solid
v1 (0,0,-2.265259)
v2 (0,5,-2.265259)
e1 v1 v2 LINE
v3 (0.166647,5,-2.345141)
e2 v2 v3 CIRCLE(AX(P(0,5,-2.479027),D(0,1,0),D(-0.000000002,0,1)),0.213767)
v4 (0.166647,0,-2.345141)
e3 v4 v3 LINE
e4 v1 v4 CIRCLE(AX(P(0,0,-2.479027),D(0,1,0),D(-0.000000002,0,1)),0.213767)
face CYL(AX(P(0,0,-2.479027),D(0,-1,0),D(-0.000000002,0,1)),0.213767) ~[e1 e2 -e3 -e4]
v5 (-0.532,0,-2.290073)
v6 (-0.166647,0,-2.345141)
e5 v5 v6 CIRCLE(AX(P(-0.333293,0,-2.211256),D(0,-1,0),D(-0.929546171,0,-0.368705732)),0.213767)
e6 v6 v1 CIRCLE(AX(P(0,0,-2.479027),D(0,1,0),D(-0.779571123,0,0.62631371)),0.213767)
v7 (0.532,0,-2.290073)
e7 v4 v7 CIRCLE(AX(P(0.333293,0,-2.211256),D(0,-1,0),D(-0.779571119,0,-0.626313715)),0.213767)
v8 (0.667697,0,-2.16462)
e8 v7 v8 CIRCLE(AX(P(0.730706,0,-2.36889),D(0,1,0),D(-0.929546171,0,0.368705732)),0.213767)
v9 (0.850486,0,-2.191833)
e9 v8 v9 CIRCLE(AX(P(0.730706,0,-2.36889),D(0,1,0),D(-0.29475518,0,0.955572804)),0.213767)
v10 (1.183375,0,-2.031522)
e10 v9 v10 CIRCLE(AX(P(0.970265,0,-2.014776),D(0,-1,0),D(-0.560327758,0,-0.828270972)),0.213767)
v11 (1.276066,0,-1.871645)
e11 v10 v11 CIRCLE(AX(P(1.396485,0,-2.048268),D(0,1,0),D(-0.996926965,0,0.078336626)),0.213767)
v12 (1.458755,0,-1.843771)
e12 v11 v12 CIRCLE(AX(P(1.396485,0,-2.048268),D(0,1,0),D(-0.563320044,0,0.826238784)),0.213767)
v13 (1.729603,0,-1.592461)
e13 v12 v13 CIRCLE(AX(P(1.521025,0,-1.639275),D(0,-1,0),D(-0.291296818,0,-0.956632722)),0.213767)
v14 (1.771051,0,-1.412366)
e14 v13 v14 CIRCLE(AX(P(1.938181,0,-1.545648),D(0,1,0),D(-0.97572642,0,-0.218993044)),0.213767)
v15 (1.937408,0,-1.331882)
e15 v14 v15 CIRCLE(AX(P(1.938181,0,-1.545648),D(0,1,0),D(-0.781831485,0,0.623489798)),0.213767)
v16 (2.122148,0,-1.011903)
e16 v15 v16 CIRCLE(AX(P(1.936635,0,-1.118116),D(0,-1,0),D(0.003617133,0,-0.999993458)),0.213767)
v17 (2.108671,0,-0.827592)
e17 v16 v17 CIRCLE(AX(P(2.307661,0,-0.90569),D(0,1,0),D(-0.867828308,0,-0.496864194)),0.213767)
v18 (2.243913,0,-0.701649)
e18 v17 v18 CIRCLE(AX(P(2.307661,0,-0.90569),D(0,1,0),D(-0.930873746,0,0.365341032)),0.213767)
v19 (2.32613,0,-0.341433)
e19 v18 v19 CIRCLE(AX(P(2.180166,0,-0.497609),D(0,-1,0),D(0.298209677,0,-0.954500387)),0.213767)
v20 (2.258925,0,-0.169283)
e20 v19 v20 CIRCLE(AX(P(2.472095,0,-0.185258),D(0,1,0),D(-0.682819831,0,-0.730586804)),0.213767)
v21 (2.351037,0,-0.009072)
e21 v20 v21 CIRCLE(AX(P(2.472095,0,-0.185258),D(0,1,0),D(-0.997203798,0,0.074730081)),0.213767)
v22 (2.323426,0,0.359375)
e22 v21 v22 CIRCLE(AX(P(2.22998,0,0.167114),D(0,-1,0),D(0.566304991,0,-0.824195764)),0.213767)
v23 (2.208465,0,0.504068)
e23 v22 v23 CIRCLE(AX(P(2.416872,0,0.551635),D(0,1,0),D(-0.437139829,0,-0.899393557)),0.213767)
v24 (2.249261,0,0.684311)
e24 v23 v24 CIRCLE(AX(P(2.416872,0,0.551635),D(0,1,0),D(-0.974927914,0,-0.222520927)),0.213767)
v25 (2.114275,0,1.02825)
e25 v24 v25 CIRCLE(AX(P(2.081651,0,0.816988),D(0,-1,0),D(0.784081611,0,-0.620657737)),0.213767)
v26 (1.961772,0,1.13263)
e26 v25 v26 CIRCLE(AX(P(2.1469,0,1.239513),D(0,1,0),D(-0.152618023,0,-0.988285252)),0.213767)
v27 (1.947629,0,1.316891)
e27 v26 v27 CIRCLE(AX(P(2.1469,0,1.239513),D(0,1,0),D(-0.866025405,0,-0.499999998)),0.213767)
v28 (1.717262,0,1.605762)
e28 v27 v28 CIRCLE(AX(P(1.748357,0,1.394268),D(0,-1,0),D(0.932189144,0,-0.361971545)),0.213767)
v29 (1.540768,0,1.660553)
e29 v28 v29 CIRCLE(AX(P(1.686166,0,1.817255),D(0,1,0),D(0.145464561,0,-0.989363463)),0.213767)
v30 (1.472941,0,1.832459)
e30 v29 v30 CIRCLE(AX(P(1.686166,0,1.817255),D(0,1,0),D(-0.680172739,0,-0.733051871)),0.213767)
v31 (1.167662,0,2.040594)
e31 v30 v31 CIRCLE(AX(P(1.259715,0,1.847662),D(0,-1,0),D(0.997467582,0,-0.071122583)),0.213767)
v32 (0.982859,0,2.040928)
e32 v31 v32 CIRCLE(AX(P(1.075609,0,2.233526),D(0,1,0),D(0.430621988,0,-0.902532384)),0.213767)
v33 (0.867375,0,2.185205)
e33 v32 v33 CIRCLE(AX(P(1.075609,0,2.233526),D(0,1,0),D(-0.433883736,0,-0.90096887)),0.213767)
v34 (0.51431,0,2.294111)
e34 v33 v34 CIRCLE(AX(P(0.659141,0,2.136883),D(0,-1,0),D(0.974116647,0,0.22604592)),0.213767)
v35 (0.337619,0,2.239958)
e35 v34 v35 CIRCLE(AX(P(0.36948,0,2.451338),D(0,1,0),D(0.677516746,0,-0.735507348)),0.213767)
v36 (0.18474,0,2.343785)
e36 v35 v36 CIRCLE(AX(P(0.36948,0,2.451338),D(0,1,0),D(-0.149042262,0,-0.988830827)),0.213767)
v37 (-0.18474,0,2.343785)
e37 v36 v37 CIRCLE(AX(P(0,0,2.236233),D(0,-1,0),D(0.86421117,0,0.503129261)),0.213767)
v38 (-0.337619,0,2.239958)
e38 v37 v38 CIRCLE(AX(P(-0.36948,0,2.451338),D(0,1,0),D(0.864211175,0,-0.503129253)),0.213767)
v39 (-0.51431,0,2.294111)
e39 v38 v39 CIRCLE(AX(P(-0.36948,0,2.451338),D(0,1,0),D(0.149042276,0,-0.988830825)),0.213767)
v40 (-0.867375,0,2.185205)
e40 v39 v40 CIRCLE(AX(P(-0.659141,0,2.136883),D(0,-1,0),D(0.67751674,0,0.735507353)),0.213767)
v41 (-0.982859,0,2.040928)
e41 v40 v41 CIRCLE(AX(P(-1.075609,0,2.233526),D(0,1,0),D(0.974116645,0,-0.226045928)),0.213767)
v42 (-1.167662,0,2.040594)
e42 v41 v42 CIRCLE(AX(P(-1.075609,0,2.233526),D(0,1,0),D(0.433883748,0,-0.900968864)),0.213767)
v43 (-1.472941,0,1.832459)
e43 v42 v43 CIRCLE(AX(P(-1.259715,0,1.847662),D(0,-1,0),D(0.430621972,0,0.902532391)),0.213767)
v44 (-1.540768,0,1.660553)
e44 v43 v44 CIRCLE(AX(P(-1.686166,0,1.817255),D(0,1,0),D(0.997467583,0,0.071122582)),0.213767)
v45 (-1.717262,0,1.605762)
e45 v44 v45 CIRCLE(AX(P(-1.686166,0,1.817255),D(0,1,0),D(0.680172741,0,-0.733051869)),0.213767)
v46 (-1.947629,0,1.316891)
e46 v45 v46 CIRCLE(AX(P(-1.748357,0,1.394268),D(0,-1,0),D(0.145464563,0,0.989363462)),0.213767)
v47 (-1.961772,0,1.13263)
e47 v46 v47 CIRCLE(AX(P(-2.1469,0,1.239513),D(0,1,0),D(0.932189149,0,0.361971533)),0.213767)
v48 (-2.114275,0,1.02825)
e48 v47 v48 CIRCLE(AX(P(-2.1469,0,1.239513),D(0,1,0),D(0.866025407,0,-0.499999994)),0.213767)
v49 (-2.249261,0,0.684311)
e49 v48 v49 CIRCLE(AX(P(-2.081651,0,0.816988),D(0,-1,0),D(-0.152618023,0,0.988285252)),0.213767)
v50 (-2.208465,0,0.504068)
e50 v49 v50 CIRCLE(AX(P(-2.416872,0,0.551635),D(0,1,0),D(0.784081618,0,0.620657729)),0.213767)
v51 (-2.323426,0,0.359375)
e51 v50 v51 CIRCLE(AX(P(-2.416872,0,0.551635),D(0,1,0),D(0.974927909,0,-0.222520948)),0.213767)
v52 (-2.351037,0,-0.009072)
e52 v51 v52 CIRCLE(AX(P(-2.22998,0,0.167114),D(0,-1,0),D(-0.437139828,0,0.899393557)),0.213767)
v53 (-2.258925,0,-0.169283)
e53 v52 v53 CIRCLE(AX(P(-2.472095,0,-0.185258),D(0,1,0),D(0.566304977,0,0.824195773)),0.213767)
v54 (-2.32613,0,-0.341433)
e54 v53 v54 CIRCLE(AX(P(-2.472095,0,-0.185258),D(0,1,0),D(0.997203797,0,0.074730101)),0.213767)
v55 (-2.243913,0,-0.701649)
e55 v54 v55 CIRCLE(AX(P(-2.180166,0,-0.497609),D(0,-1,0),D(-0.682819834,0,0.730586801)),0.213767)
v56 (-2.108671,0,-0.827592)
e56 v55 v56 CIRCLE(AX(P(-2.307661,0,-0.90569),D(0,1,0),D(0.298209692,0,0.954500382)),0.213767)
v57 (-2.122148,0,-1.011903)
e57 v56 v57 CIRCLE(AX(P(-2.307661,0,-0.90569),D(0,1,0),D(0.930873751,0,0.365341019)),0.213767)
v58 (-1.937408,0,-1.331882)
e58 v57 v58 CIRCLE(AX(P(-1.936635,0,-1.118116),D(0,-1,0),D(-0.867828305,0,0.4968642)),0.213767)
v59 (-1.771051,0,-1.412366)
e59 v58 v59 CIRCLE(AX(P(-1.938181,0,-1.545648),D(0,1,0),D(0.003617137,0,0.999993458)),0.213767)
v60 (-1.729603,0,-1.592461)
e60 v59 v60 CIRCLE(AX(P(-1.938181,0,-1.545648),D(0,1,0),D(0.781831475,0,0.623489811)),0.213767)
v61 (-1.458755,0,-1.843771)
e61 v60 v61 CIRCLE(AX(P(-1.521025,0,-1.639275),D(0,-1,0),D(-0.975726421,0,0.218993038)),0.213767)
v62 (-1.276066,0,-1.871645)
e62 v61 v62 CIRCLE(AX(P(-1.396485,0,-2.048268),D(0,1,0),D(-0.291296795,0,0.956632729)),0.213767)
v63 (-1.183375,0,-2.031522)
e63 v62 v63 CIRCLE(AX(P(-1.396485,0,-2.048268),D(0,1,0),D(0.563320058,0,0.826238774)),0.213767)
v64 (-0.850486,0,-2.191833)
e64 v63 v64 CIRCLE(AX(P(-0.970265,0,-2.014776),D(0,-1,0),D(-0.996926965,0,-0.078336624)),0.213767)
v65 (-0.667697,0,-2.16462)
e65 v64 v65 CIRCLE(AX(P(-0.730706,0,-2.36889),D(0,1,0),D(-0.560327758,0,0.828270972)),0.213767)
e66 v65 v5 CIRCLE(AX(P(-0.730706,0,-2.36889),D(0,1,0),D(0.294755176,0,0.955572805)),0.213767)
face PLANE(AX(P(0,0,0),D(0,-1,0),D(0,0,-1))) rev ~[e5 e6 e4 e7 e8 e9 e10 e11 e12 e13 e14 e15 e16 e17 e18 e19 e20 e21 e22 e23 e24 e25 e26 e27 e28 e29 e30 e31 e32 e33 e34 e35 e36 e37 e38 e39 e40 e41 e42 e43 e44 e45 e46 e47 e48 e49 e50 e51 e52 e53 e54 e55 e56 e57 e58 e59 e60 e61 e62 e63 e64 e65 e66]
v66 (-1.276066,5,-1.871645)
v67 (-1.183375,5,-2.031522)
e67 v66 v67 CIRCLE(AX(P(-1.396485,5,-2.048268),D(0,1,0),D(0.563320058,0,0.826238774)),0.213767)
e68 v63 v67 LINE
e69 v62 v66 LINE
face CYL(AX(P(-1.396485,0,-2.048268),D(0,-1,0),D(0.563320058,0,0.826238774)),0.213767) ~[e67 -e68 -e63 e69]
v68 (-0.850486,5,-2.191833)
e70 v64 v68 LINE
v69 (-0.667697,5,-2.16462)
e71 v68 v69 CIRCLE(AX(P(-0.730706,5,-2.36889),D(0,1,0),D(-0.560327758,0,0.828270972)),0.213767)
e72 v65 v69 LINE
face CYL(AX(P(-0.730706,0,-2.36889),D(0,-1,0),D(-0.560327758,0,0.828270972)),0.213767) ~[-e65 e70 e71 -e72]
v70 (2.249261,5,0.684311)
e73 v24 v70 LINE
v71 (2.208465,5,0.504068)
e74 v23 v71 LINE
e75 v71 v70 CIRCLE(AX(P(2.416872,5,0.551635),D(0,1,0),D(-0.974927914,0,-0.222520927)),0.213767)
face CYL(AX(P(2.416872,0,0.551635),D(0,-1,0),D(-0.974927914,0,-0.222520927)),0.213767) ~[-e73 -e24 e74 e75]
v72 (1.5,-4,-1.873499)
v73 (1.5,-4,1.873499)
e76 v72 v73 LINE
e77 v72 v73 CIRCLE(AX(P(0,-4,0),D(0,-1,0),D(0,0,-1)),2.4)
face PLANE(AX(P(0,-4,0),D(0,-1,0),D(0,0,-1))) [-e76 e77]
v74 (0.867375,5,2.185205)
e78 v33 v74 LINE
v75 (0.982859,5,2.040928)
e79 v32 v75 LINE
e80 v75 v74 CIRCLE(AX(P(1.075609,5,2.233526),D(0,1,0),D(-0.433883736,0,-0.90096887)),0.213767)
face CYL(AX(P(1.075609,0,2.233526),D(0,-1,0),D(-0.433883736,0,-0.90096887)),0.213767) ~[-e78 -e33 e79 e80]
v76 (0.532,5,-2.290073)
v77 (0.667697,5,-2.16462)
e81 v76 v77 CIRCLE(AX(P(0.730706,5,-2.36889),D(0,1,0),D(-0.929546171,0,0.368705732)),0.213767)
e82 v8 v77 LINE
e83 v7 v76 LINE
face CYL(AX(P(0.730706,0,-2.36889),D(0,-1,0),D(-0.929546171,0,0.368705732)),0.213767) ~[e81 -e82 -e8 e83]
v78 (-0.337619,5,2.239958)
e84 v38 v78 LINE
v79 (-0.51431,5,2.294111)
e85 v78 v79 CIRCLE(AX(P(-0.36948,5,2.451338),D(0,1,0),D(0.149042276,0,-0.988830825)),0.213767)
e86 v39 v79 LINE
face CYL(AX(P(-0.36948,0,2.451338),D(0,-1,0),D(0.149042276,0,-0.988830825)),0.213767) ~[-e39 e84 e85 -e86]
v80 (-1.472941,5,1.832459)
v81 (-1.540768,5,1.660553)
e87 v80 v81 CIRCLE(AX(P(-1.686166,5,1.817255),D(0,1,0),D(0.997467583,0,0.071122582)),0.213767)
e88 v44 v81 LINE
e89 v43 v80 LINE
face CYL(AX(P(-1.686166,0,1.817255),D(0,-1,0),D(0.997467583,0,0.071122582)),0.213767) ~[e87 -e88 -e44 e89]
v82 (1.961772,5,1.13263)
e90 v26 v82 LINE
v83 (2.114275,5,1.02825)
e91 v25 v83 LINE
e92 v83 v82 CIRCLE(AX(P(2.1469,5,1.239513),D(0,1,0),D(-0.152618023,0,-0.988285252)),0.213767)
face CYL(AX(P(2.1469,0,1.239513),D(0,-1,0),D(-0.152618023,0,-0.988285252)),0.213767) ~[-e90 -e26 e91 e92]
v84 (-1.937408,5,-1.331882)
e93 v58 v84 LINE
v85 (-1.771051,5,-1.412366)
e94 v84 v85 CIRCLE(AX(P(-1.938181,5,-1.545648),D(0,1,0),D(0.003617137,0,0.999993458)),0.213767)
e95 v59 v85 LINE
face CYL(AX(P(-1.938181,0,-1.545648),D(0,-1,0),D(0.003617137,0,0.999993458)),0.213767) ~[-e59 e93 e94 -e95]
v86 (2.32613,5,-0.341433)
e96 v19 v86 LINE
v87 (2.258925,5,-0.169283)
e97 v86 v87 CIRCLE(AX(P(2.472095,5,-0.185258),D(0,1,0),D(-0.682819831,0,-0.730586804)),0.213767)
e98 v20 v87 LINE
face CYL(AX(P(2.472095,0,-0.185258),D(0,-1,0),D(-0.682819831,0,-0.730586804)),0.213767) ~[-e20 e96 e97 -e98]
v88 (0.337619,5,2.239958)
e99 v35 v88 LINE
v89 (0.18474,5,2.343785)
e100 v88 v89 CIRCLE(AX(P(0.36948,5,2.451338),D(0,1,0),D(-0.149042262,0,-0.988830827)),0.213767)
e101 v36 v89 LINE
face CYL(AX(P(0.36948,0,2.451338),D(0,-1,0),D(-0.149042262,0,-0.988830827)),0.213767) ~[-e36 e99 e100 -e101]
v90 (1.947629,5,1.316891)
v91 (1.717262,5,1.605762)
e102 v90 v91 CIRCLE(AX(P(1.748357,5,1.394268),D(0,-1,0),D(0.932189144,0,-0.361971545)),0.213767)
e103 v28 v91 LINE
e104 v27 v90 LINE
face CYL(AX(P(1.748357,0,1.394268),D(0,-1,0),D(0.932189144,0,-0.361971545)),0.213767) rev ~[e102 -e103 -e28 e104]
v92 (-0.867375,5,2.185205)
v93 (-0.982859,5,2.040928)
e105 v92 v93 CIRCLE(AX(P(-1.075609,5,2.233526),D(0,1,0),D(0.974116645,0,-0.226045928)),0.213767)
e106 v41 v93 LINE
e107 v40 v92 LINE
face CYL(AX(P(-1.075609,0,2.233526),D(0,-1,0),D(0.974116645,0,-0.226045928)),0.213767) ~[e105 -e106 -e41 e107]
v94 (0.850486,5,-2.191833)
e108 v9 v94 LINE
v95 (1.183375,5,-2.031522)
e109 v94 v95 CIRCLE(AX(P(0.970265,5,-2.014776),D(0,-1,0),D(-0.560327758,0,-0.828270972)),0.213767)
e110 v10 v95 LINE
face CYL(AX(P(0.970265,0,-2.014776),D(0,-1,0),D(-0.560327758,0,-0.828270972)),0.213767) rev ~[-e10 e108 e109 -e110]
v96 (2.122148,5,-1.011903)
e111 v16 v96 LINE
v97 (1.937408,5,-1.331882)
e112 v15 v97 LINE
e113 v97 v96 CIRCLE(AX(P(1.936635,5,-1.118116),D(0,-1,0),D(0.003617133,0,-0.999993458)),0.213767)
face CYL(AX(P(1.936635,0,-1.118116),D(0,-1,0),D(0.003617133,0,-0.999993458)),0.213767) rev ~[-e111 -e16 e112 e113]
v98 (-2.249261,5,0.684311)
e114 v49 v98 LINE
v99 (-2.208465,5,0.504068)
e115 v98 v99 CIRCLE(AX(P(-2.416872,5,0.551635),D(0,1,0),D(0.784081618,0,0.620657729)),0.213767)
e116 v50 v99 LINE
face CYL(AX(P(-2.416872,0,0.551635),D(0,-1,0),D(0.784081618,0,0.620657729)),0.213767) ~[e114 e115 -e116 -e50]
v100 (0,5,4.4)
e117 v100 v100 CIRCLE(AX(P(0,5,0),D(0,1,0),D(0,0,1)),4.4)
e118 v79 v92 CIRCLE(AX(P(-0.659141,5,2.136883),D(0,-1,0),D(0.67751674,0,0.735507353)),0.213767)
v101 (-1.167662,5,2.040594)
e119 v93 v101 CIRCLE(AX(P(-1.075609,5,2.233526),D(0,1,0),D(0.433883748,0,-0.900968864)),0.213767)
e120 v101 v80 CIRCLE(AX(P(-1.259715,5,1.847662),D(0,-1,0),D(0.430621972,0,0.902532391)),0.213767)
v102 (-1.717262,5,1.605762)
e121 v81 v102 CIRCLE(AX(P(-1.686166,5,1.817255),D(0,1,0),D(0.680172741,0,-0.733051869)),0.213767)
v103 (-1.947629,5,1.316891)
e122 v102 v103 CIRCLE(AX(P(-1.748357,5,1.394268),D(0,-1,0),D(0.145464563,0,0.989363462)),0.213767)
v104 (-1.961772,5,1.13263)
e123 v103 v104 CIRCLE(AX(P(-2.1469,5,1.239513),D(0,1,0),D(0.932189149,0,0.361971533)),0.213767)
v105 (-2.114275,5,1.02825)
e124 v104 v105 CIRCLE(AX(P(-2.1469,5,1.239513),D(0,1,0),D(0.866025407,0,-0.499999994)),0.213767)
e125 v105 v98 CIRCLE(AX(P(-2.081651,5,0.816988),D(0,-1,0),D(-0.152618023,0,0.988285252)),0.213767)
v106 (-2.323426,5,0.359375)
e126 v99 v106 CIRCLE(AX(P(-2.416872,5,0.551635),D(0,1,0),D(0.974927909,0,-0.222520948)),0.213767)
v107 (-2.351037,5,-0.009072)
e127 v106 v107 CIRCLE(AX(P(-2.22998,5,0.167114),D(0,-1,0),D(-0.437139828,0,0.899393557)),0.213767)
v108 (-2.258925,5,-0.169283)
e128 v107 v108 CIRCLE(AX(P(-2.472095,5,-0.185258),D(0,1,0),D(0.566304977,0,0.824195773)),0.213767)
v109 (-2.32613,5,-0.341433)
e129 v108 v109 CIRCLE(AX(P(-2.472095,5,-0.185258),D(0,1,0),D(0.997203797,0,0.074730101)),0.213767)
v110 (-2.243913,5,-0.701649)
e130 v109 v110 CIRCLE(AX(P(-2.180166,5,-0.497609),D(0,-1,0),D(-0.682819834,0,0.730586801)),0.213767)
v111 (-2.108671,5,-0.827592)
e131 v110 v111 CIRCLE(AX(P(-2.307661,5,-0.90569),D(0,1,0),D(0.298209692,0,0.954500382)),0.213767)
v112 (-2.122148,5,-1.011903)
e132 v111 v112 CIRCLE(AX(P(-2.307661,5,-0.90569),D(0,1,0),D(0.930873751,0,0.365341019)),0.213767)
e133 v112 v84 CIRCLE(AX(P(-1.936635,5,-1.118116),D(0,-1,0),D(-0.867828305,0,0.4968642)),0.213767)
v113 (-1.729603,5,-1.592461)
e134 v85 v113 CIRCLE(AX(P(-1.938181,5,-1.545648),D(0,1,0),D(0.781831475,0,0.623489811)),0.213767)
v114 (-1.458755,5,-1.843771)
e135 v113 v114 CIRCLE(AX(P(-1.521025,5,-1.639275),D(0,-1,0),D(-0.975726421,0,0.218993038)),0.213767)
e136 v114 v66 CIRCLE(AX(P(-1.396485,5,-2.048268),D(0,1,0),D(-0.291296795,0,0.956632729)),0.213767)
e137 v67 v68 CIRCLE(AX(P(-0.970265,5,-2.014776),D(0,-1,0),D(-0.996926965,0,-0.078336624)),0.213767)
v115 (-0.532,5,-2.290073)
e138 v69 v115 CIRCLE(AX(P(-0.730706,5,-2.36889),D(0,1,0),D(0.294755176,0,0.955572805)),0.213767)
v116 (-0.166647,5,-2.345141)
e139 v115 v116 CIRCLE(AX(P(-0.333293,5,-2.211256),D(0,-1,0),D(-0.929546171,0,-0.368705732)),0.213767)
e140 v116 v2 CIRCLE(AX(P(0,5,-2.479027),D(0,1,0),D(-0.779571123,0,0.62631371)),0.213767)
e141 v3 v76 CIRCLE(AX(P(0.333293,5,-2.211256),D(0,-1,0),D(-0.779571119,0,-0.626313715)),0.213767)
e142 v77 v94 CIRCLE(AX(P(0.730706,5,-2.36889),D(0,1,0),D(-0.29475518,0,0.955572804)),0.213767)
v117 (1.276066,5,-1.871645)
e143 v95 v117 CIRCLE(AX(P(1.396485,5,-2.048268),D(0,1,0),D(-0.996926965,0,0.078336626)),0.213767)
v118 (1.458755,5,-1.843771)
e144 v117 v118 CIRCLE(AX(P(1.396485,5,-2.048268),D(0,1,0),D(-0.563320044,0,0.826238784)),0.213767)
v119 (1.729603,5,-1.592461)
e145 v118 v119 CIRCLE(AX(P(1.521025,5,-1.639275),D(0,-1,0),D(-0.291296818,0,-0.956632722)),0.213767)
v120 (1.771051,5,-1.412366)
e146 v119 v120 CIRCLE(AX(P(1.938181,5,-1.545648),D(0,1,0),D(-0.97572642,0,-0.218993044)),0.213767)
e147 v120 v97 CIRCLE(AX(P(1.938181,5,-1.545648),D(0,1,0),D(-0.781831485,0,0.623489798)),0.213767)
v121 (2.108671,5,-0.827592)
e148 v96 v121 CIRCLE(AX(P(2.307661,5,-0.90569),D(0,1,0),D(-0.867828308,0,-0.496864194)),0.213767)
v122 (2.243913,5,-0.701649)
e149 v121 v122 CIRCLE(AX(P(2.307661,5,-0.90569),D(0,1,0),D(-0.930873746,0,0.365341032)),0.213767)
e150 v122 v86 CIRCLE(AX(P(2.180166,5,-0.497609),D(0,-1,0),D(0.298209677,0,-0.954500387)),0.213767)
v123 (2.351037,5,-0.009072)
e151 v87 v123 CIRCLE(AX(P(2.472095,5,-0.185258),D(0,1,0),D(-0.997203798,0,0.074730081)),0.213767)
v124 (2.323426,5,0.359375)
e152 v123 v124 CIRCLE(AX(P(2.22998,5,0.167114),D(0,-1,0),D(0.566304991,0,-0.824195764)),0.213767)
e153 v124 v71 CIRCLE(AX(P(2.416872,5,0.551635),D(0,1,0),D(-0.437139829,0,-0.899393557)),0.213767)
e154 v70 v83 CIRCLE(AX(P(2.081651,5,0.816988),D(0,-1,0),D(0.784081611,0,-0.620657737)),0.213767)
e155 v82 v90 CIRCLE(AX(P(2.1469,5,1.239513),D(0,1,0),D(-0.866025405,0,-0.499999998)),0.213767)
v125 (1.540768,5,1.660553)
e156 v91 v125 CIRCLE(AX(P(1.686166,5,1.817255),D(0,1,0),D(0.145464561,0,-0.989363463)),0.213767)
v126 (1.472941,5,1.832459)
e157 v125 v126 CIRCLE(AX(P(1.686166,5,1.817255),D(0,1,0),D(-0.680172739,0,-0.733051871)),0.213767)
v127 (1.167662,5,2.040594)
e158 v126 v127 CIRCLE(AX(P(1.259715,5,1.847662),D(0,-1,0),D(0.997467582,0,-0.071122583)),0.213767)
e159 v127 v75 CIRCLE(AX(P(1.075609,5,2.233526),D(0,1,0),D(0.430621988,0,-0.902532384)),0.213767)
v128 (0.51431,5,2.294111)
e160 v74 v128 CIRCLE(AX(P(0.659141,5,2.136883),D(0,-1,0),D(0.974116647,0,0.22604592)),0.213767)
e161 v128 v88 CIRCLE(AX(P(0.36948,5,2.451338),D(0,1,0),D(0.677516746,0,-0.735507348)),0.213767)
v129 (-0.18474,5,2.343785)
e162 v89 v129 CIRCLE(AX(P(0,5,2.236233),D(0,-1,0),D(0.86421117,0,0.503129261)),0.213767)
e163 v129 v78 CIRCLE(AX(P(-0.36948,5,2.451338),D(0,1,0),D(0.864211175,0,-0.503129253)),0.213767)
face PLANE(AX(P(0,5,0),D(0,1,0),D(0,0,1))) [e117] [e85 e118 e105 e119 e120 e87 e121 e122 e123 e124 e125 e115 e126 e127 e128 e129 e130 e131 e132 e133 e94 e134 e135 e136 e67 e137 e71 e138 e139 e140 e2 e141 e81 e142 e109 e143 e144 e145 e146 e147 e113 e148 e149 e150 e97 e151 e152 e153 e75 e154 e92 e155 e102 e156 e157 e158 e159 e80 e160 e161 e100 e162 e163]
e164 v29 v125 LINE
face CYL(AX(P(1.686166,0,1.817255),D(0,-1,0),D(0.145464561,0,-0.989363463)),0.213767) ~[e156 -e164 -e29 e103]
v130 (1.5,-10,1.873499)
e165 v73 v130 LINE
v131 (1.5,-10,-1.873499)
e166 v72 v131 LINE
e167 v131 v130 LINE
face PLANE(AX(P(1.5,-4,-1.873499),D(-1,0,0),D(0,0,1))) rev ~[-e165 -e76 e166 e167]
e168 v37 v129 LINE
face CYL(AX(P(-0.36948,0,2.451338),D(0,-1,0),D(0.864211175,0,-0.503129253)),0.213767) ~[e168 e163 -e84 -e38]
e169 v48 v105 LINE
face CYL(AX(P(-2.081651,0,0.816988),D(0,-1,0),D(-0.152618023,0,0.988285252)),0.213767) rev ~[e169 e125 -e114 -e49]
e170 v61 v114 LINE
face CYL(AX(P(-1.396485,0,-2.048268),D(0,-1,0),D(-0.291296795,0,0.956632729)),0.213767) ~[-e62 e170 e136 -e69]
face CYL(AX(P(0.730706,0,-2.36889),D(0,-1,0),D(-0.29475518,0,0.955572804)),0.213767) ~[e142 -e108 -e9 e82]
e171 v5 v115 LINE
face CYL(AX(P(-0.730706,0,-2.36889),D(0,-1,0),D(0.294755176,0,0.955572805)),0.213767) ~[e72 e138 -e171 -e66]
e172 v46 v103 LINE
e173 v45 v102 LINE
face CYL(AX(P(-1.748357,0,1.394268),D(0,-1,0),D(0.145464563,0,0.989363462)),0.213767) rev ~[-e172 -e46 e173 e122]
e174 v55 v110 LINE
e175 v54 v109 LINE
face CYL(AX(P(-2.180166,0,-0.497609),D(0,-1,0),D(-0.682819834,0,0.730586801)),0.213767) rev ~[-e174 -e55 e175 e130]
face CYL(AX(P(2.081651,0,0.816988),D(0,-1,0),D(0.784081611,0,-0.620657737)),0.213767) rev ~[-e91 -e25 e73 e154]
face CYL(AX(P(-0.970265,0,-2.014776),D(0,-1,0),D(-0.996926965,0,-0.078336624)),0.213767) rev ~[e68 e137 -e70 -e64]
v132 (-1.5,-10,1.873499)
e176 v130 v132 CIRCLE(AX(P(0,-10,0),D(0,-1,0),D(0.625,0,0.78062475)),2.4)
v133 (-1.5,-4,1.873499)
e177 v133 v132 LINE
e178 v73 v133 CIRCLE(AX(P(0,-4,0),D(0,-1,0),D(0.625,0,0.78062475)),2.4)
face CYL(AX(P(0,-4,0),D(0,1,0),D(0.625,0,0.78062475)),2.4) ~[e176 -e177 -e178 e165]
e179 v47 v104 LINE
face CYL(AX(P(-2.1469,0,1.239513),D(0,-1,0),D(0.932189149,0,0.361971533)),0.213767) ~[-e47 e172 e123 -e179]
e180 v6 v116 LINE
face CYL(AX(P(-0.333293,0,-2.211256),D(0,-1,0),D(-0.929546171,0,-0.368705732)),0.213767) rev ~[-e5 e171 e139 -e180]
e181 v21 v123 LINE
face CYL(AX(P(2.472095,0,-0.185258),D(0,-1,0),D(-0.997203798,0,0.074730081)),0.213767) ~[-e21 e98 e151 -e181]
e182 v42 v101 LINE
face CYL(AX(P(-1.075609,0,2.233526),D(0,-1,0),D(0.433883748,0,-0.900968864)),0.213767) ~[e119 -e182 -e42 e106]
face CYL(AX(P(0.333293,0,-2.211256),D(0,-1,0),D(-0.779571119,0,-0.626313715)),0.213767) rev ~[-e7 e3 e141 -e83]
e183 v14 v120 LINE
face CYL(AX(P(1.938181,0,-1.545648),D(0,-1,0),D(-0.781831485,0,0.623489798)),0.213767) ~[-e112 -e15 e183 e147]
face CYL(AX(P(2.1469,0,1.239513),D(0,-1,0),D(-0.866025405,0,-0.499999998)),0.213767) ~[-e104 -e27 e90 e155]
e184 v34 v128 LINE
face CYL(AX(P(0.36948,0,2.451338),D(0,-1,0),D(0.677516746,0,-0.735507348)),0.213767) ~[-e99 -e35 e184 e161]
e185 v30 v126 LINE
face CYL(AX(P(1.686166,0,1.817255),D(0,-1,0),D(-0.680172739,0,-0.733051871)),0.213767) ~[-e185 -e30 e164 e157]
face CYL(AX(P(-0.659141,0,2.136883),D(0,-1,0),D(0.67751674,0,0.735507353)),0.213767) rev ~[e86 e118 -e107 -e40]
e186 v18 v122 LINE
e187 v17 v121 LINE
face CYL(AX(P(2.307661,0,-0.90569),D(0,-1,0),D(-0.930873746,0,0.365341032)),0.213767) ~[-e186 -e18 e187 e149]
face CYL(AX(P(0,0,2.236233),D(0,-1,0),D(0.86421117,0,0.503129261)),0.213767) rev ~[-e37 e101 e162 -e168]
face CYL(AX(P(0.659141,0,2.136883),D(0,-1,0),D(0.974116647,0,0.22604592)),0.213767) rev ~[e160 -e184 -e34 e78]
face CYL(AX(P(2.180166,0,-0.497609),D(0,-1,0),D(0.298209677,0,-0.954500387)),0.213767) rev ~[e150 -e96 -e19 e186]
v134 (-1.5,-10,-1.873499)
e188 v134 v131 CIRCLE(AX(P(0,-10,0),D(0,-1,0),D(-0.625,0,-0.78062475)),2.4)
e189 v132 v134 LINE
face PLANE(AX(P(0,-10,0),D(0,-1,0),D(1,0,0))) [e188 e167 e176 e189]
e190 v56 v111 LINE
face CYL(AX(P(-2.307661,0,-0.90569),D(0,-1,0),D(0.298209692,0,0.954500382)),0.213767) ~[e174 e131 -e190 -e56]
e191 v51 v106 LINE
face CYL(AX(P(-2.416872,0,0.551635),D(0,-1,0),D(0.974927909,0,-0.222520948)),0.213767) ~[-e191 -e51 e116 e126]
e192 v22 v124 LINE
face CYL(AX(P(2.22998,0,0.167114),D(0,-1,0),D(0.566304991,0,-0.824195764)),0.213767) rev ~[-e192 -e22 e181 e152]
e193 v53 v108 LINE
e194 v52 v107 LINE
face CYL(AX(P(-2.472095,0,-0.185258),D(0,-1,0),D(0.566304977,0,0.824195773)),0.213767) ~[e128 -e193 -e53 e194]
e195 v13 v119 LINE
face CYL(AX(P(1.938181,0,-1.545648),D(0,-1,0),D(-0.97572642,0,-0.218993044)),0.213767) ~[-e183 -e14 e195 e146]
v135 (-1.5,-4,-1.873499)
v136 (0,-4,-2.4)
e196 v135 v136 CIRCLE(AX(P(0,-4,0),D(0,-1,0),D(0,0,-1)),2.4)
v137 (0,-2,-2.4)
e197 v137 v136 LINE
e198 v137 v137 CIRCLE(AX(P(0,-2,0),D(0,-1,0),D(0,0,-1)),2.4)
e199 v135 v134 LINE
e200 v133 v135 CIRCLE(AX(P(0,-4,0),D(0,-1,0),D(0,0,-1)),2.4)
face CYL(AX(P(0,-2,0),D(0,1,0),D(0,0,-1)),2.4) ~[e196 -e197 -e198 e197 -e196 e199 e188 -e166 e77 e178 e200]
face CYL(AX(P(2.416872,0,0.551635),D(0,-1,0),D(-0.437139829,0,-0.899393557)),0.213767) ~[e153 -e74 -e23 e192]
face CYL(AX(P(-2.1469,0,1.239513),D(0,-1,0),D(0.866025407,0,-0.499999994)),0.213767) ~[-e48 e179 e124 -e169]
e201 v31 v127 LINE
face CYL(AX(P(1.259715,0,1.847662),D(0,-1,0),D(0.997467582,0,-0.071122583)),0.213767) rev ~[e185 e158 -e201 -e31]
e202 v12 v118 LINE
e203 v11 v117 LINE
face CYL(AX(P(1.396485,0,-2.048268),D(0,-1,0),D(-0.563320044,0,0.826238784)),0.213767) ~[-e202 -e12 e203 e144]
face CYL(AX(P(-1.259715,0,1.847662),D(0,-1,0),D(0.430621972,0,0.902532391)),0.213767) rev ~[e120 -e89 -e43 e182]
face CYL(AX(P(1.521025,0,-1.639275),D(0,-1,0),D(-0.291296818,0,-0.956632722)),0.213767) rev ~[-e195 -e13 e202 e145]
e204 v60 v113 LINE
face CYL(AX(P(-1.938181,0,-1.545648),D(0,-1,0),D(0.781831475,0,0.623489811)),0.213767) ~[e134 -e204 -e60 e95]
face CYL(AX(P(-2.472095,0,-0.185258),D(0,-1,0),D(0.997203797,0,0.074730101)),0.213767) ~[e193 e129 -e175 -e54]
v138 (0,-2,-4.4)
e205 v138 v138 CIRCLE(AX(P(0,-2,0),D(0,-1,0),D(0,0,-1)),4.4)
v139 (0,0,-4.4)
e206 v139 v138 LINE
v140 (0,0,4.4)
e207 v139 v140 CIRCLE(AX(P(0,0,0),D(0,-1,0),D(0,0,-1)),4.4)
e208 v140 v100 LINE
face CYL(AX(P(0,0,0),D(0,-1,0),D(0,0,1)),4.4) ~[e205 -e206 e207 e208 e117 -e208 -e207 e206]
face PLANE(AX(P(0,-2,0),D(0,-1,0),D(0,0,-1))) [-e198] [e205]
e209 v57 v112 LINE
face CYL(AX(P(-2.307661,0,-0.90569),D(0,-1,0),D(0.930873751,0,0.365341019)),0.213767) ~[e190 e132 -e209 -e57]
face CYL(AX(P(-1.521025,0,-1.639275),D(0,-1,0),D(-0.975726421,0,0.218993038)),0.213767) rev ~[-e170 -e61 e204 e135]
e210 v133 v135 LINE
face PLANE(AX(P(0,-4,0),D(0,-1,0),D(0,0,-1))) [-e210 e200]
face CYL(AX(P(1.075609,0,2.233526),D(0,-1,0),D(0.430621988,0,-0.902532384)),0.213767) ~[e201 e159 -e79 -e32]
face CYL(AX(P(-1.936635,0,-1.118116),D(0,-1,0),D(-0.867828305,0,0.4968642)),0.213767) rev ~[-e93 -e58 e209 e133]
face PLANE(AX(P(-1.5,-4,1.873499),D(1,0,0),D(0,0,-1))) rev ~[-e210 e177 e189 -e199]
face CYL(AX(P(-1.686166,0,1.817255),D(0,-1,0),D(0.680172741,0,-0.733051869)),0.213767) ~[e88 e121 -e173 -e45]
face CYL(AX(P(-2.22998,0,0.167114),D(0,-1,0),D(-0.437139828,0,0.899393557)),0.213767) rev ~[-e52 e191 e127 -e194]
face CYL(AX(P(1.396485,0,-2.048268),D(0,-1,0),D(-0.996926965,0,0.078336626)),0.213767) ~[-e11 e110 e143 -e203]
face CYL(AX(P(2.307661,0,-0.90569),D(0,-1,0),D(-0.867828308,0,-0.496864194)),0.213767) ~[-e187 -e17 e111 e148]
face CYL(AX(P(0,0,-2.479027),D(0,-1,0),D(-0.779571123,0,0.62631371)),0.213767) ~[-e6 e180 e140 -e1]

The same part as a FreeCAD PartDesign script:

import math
import FreeCAD as App
import Part
import Sketcher
Q = App.Units.Quantity

doc = App.newDocument("Part")
body = doc.addObject("PartDesign::Body", "Body")

# Sketch on XZ plane
sketch1 = body.newObject("Sketcher::SketchObject", "Sketch")
sketch1.AttachmentSupport = (doc.getObject("XZ_Plane"), [""])
sketch1.MapMode = "FlatFace"
sketch1.addGeometry([
    Part.Circle(App.Vector(0, 0, 0), App.Vector(0, 0, 1), 3.95),  # 0
    Part.ArcOfCircle(Part.Circle(App.Vector(-0.33, -2.21, 0), App.Vector(0, 0, 1), 0.21), math.radians(-158), math.radians(-39)),  # 1
    Part.ArcOfCircle(Part.Circle(App.Vector(0, -2.48, 0), App.Vector(0, 0, 1), 0.21), math.radians(90), math.radians(141)),  # 2
    Part.ArcOfCircle(Part.Circle(App.Vector(0, -2.48, 0), App.Vector(0, 0, 1), 0.21), math.radians(39), math.radians(90)),  # 3
    Part.ArcOfCircle(Part.Circle(App.Vector(0.33, -2.21, 0), App.Vector(0, 0, 1), 0.21), math.radians(-141), math.radians(-22)),  # 4
    Part.ArcOfCircle(Part.Circle(App.Vector(0.73, -2.37, 0), App.Vector(0, 0, 1), 0.21), math.radians(107), math.radians(158)),  # 5
    Part.ArcOfCircle(Part.Circle(App.Vector(0.73, -2.37, 0), App.Vector(0, 0, 1), 0.21), math.radians(56), math.radians(107)),  # 6
    Part.ArcOfCircle(Part.Circle(App.Vector(0.97, -2.01, 0), App.Vector(0, 0, 1), 0.21), math.radians(-124), math.radians(-4)),  # 7
    Part.ArcOfCircle(Part.Circle(App.Vector(1.4, -2.05, 0), App.Vector(0, 0, 1), 0.21), math.radians(124), math.radians(176)),  # 8
    Part.ArcOfCircle(Part.Circle(App.Vector(1.4, -2.05, 0), App.Vector(0, 0, 1), 0.21), math.radians(73), math.radians(124)),  # 9
    Part.ArcOfCircle(Part.Circle(App.Vector(1.52, -1.64, 0), App.Vector(0, 0, 1), 0.21), math.radians(-107), math.radians(13)),  # 10
    Part.ArcOfCircle(Part.Circle(App.Vector(1.94, -1.55, 0), App.Vector(0, 0, 1), 0.21), math.radians(141), math.radians(193)),  # 11
    Part.ArcOfCircle(Part.Circle(App.Vector(1.94, -1.55, 0), App.Vector(0, 0, 1), 0.21), math.radians(90), math.radians(141)),  # 12
    Part.ArcOfCircle(Part.Circle(App.Vector(1.94, -1.12, 0), App.Vector(0, 0, 1), 0.21), math.radians(-90), math.radians(30)),  # 13
    Part.ArcOfCircle(Part.Circle(App.Vector(2.31, -0.91, 0), App.Vector(0, 0, 1), 0.21), math.radians(159), math.radians(210)),  # 14
    Part.ArcOfCircle(Part.Circle(App.Vector(2.31, -0.91, 0), App.Vector(0, 0, 1), 0.21), math.radians(107), math.radians(159)),  # 15
    Part.ArcOfCircle(Part.Circle(App.Vector(2.18, -0.5, 0), App.Vector(0, 0, 1), 0.21), math.radians(-73), math.radians(47)),  # 16
    Part.ArcOfCircle(Part.Circle(App.Vector(2.47, -0.19, 0), App.Vector(0, 0, 1), 0.21), math.radians(176), math.radians(227)),  # 17
    Part.ArcOfCircle(Part.Circle(App.Vector(2.47, -0.19, 0), App.Vector(0, 0, 1), 0.21), math.radians(124), math.radians(176)),  # 18
    Part.ArcOfCircle(Part.Circle(App.Vector(2.23, 0.17, 0), App.Vector(0, 0, 1), 0.21), math.radians(-56), math.radians(64)),  # 19
    Part.ArcOfCircle(Part.Circle(App.Vector(2.42, 0.55, 0), App.Vector(0, 0, 1), 0.21), math.radians(-167), math.radians(-116)),  # 20
    Part.ArcOfCircle(Part.Circle(App.Vector(2.42, 0.55, 0), App.Vector(0, 0, 1), 0.21), math.radians(142), math.radians(193)),  # 21
    Part.ArcOfCircle(Part.Circle(App.Vector(2.08, 0.82, 0), App.Vector(0, 0, 1), 0.21), math.radians(-38), math.radians(81)),  # 22
    Part.ArcOfCircle(Part.Circle(App.Vector(2.15, 1.24, 0), App.Vector(0, 0, 1), 0.21), math.radians(-150), math.radians(-99)),  # 23
    Part.ArcOfCircle(Part.Circle(App.Vector(2.15, 1.24, 0), App.Vector(0, 0, 1), 0.21), math.radians(159), math.radians(210)),  # 24
    Part.ArcOfCircle(Part.Circle(App.Vector(1.75, 1.39, 0), App.Vector(0, 0, 1), 0.21), math.radians(-21), math.radians(98)),  # 25
    Part.ArcOfCircle(Part.Circle(App.Vector(1.69, 1.82, 0), App.Vector(0, 0, 1), 0.21), math.radians(-133), math.radians(-82)),  # 26
    Part.ArcOfCircle(Part.Circle(App.Vector(1.69, 1.82, 0), App.Vector(0, 0, 1), 0.21), math.radians(176), math.radians(227)),  # 27
    Part.ArcOfCircle(Part.Circle(App.Vector(1.26, 1.85, 0), App.Vector(0, 0, 1), 0.21), math.radians(-4), math.radians(116)),  # 28
    Part.ArcOfCircle(Part.Circle(App.Vector(1.08, 2.23, 0), App.Vector(0, 0, 1), 0.21), math.radians(-116), math.radians(-64)),  # 29
    Part.ArcOfCircle(Part.Circle(App.Vector(1.08, 2.23, 0), App.Vector(0, 0, 1), 0.21), math.radians(-167), math.radians(-116)),  # 30
    Part.ArcOfCircle(Part.Circle(App.Vector(0.66, 2.14, 0), App.Vector(0, 0, 1), 0.21), math.radians(13), math.radians(133)),  # 31
    Part.ArcOfCircle(Part.Circle(App.Vector(0.37, 2.45, 0), App.Vector(0, 0, 1), 0.21), math.radians(-99), math.radians(-47)),  # 32
    Part.ArcOfCircle(Part.Circle(App.Vector(0.37, 2.45, 0), App.Vector(0, 0, 1), 0.21), math.radians(-150), math.radians(-99)),  # 33
    Part.ArcOfCircle(Part.Circle(App.Vector(0, 2.24, 0), App.Vector(0, 0, 1), 0.21), math.radians(30), math.radians(150)),  # 34
    Part.ArcOfCircle(Part.Circle(App.Vector(-0.37, 2.45, 0), App.Vector(0, 0, 1), 0.21), math.radians(-81), math.radians(-30)),  # 35
    Part.ArcOfCircle(Part.Circle(App.Vector(-0.37, 2.45, 0), App.Vector(0, 0, 1), 0.21), math.radians(-133), math.radians(-81)),  # 36
    Part.ArcOfCircle(Part.Circle(App.Vector(-0.66, 2.14, 0), App.Vector(0, 0, 1), 0.21), math.radians(47), math.radians(167)),  # 37
    Part.ArcOfCircle(Part.Circle(App.Vector(-1.08, 2.23, 0), App.Vector(0, 0, 1), 0.21), math.radians(-64), math.radians(-13)),  # 38
    Part.ArcOfCircle(Part.Circle(App.Vector(-1.08, 2.23, 0), App.Vector(0, 0, 1), 0.21), math.radians(-116), math.radians(-64)),  # 39
    Part.ArcOfCircle(Part.Circle(App.Vector(-1.26, 1.85, 0), App.Vector(0, 0, 1), 0.21), math.radians(64), math.radians(184)),  # 40
    Part.ArcOfCircle(Part.Circle(App.Vector(-1.69, 1.82, 0), App.Vector(0, 0, 1), 0.21), math.radians(-47), math.radians(4)),  # 41
    Part.ArcOfCircle(Part.Circle(App.Vector(-1.69, 1.82, 0), App.Vector(0, 0, 1), 0.21), math.radians(-98), math.radians(-47)),  # 42
    Part.ArcOfCircle(Part.Circle(App.Vector(-1.75, 1.39, 0), App.Vector(0, 0, 1), 0.21), math.radians(82), math.radians(201)),  # 43
    Part.ArcOfCircle(Part.Circle(App.Vector(-2.15, 1.24, 0), App.Vector(0, 0, 1), 0.21), math.radians(-30), math.radians(21)),  # 44
    Part.ArcOfCircle(Part.Circle(App.Vector(-2.15, 1.24, 0), App.Vector(0, 0, 1), 0.21), math.radians(-81), math.radians(-30)),  # 45
    Part.ArcOfCircle(Part.Circle(App.Vector(-2.08, 0.82, 0), App.Vector(0, 0, 1), 0.21), math.radians(99), math.radians(218)),  # 46
    Part.ArcOfCircle(Part.Circle(App.Vector(-2.42, 0.55, 0), App.Vector(0, 0, 1), 0.21), math.radians(-13), math.radians(38)),  # 47
    Part.ArcOfCircle(Part.Circle(App.Vector(-2.42, 0.55, 0), App.Vector(0, 0, 1), 0.21), math.radians(-64), math.radians(-13)),  # 48
    Part.ArcOfCircle(Part.Circle(App.Vector(-2.23, 0.17, 0), App.Vector(0, 0, 1), 0.21), math.radians(116), math.radians(236)),  # 49
    Part.ArcOfCircle(Part.Circle(App.Vector(-2.47, -0.19, 0), App.Vector(0, 0, 1), 0.21), math.radians(4), math.radians(56)),  # 50
    Part.ArcOfCircle(Part.Circle(App.Vector(-2.47, -0.19, 0), App.Vector(0, 0, 1), 0.21), math.radians(-47), math.radians(4)),  # 51
    Part.ArcOfCircle(Part.Circle(App.Vector(-2.18, -0.5, 0), App.Vector(0, 0, 1), 0.21), math.radians(133), math.radians(253)),  # 52
    Part.ArcOfCircle(Part.Circle(App.Vector(-2.31, -0.91, 0), App.Vector(0, 0, 1), 0.21), math.radians(21), math.radians(73)),  # 53
    Part.ArcOfCircle(Part.Circle(App.Vector(-2.31, -0.91, 0), App.Vector(0, 0, 1), 0.21), math.radians(-30), math.radians(21)),  # 54
    Part.ArcOfCircle(Part.Circle(App.Vector(-1.94, -1.12, 0), App.Vector(0, 0, 1), 0.21), math.radians(150), math.radians(270)),  # 55
    Part.ArcOfCircle(Part.Circle(App.Vector(-1.94, -1.55, 0), App.Vector(0, 0, 1), 0.21), math.radians(39), math.radians(90)),  # 56
    Part.ArcOfCircle(Part.Circle(App.Vector(-1.94, -1.55, 0), App.Vector(0, 0, 1), 0.21), math.radians(-13), math.radians(39)),  # 57
    Part.ArcOfCircle(Part.Circle(App.Vector(-1.52, -1.64, 0), App.Vector(0, 0, 1), 0.21), math.radians(167), math.radians(287)),  # 58
    Part.ArcOfCircle(Part.Circle(App.Vector(-1.4, -2.05, 0), App.Vector(0, 0, 1), 0.21), math.radians(56), math.radians(107)),  # 59
    Part.ArcOfCircle(Part.Circle(App.Vector(-1.4, -2.05, 0), App.Vector(0, 0, 1), 0.21), math.radians(4), math.radians(56)),  # 60
    Part.ArcOfCircle(Part.Circle(App.Vector(-0.97, -2.01, 0), App.Vector(0, 0, 1), 0.21), math.radians(-176), math.radians(-56)),  # 61
    Part.ArcOfCircle(Part.Circle(App.Vector(-0.73, -2.37, 0), App.Vector(0, 0, 1), 0.21), math.radians(73), math.radians(124)),  # 62
    Part.ArcOfCircle(Part.Circle(App.Vector(-0.73, -2.37, 0), App.Vector(0, 0, 1), 0.21), math.radians(22), math.radians(73)),  # 63
], False)
sketch1.addConstraint([
    Sketcher.Constraint("Tangent", 1, 2, 2, 2),
    Sketcher.Constraint("Tangent", 2, 1, 3, 2),
    Sketcher.Constraint("Tangent", 3, 1, 4, 1),
    Sketcher.Constraint("Tangent", 4, 2, 5, 2),
    Sketcher.Constraint("Tangent", 5, 1, 6, 2),
    Sketcher.Constraint("Tangent", 6, 1, 7, 1),
    Sketcher.Constraint("Tangent", 7, 2, 8, 2),
    Sketcher.Constraint("Tangent", 8, 1, 9, 2),
    Sketcher.Constraint("Tangent", 9, 1, 10, 1),
    Sketcher.Constraint("Tangent", 10, 2, 11, 2),
    Sketcher.Constraint("Tangent", 11, 1, 12, 2),
    Sketcher.Constraint("Tangent", 12, 1, 13, 1),
    Sketcher.Constraint("Tangent", 13, 2, 14, 2),
    Sketcher.Constraint("Tangent", 14, 1, 15, 2),
    Sketcher.Constraint("Tangent", 15, 1, 16, 1),
    Sketcher.Constraint("Tangent", 16, 2, 17, 2),
    Sketcher.Constraint("Tangent", 17, 1, 18, 2),
    Sketcher.Constraint("Tangent", 18, 1, 19, 1),
    Sketcher.Constraint("Tangent", 19, 2, 20, 2),
    Sketcher.Constraint("Tangent", 20, 1, 21, 2),
    Sketcher.Constraint("Tangent", 21, 1, 22, 1),
    Sketcher.Constraint("Tangent", 22, 2, 23, 2),
    Sketcher.Constraint("Tangent", 23, 1, 24, 2),
    Sketcher.Constraint("Tangent", 24, 1, 25, 1),
    Sketcher.Constraint("Tangent", 25, 2, 26, 2),
    Sketcher.Constraint("Tangent", 26, 1, 27, 2),
    Sketcher.Constraint("Tangent", 27, 1, 28, 1),
    Sketcher.Constraint("Tangent", 28, 2, 29, 2),
    Sketcher.Constraint("Tangent", 29, 1, 30, 2),
    Sketcher.Constraint("Tangent", 30, 1, 31, 1),
    Sketcher.Constraint("Tangent", 31, 2, 32, 2),
    Sketcher.Constraint("Tangent", 32, 1, 33, 2),
    Sketcher.Constraint("Tangent", 33, 1, 34, 1),
    Sketcher.Constraint("Tangent", 34, 2, 35, 2),
    Sketcher.Constraint("Tangent", 35, 1, 36, 2),
    Sketcher.Constraint("Tangent", 36, 1, 37, 1),
    Sketcher.Constraint("Tangent", 37, 2, 38, 2),
    Sketcher.Constraint("Tangent", 38, 1, 39, 2),
    Sketcher.Constraint("Tangent", 39, 1, 40, 1),
    Sketcher.Constraint("Tangent", 40, 2, 41, 2),
    Sketcher.Constraint("Tangent", 41, 1, 42, 2),
    Sketcher.Constraint("Tangent", 42, 1, 43, 1),
    Sketcher.Constraint("Tangent", 43, 2, 44, 2),
    Sketcher.Constraint("Tangent", 44, 1, 45, 2),
    Sketcher.Constraint("Tangent", 45, 1, 46, 1),
    Sketcher.Constraint("Tangent", 46, 2, 47, 2),
    Sketcher.Constraint("Tangent", 47, 1, 48, 2),
    Sketcher.Constraint("Tangent", 48, 1, 49, 1),
    Sketcher.Constraint("Tangent", 49, 2, 50, 2),
    Sketcher.Constraint("Tangent", 50, 1, 51, 2),
    Sketcher.Constraint("Tangent", 51, 1, 52, 1),
    Sketcher.Constraint("Tangent", 52, 2, 53, 2),
    Sketcher.Constraint("Tangent", 53, 1, 54, 2),
    Sketcher.Constraint("Tangent", 54, 1, 55, 1),
    Sketcher.Constraint("Tangent", 55, 2, 56, 2),
    Sketcher.Constraint("Tangent", 56, 1, 57, 2),
    Sketcher.Constraint("Tangent", 57, 1, 58, 1),
    Sketcher.Constraint("Tangent", 58, 2, 59, 2),
    Sketcher.Constraint("Tangent", 59, 1, 60, 2),
    Sketcher.Constraint("Tangent", 60, 1, 61, 1),
    Sketcher.Constraint("Tangent", 61, 2, 62, 2),
    Sketcher.Constraint("Tangent", 62, 1, 63, 2),
    Sketcher.Constraint("Tangent", 63, 1, 1, 1),
    Sketcher.Constraint("Coincident", 0, 3, -1, 1),
    Sketcher.Constraint("Equal", 1, 2),
    Sketcher.Constraint("Equal", 2, 3),
    Sketcher.Constraint("Equal", 3, 4),
    Sketcher.Constraint("Equal", 4, 5),
    Sketcher.Constraint("Equal", 5, 6),
    Sketcher.Constraint("Equal", 6, 7),
    Sketcher.Constraint("Equal", 7, 8),
    Sketcher.Constraint("Equal", 8, 9),
    Sketcher.Constraint("Equal", 9, 10),
    Sketcher.Constraint("Equal", 10, 11),
    Sketcher.Constraint("Equal", 11, 12),
    Sketcher.Constraint("Equal", 12, 13),
    Sketcher.Constraint("Equal", 13, 14),
    Sketcher.Constraint("Equal", 14, 15),
    Sketcher.Constraint("Equal", 15, 16),
    Sketcher.Constraint("Equal", 16, 17),
    Sketcher.Constraint("Equal", 17, 18),
    Sketcher.Constraint("Equal", 18, 19),
    Sketcher.Constraint("Equal", 19, 20),
    Sketcher.Constraint("Equal", 20, 21),
    Sketcher.Constraint("Equal", 21, 22),
    Sketcher.Constraint("Equal", 22, 23),
    Sketcher.Constraint("Equal", 23, 24),
    Sketcher.Constraint("Equal", 24, 25),
    Sketcher.Constraint("Equal", 25, 26),
    Sketcher.Constraint("Equal", 26, 27),
    Sketcher.Constraint("Equal", 27, 28),
    Sketcher.Constraint("Equal", 28, 29),
    Sketcher.Constraint("Equal", 29, 30),
    Sketcher.Constraint("Equal", 30, 31),
    Sketcher.Constraint("Equal", 31, 32),
    Sketcher.Constraint("Equal", 32, 33),
    Sketcher.Constraint("Equal", 33, 34),
    Sketcher.Constraint("Equal", 34, 35),
    Sketcher.Constraint("Equal", 35, 36),
    Sketcher.Constraint("Equal", 36, 37),
    Sketcher.Constraint("Equal", 37, 38),
    Sketcher.Constraint("Equal", 38, 39),
    Sketcher.Constraint("Equal", 39, 40),
    Sketcher.Constraint("Equal", 40, 41),
    Sketcher.Constraint("Equal", 41, 42),
    Sketcher.Constraint("Equal", 42, 43),
    Sketcher.Constraint("Equal", 43, 44),
    Sketcher.Constraint("Equal", 44, 45),
    Sketcher.Constraint("Equal", 45, 46),
    Sketcher.Constraint("Equal", 46, 47),
    Sketcher.Constraint("Equal", 47, 48),
    Sketcher.Constraint("Equal", 48, 49),
    Sketcher.Constraint("Equal", 49, 50),
    Sketcher.Constraint("Equal", 50, 51),
    Sketcher.Constraint("Equal", 51, 52),
    Sketcher.Constraint("Equal", 52, 53),
    Sketcher.Constraint("Equal", 53, 54),
    Sketcher.Constraint("Equal", 54, 55),
    Sketcher.Constraint("Equal", 55, 56),
    Sketcher.Constraint("Equal", 56, 57),
    Sketcher.Constraint("Equal", 57, 58),
    Sketcher.Constraint("Equal", 58, 59),
    Sketcher.Constraint("Equal", 59, 60),
    Sketcher.Constraint("Equal", 60, 61),
    Sketcher.Constraint("Equal", 61, 62),
    Sketcher.Constraint("Equal", 62, 63),
    Sketcher.Constraint("Symmetric", 1, 3, 4, 3, -2),
    Sketcher.Constraint("Symmetric", 32, 3, 35, 3, -2),
    Sketcher.Constraint("Symmetric", 29, 3, 38, 3, -2),
    Sketcher.Constraint("Symmetric", 26, 3, 41, 3, -2),
    Sketcher.Constraint("Symmetric", 23, 3, 44, 3, -2),
    Sketcher.Constraint("Symmetric", 20, 3, 47, 3, -2),
    Sketcher.Constraint("Symmetric", 17, 3, 50, 3, -2),
    Sketcher.Constraint("Symmetric", 14, 3, 53, 3, -2),
    Sketcher.Constraint("Symmetric", 11, 3, 56, 3, -2),
    Sketcher.Constraint("Symmetric", 8, 3, 59, 3, -2),
    Sketcher.Constraint("Symmetric", 5, 1, 62, 1, -2),
    Sketcher.Constraint("PointOnObject", 2, 1, -2),
    Sketcher.Constraint("Horizontal", 32, 1, 35, 1),
    Sketcher.Constraint("Horizontal", 29, 1, 38, 1),
    Sketcher.Constraint("Horizontal", 26, 1, 41, 1),
    Sketcher.Constraint("Horizontal", 23, 1, 44, 1),
    Sketcher.Constraint("Horizontal", 20, 1, 47, 1),
    Sketcher.Constraint("Horizontal", 17, 1, 50, 1),
    Sketcher.Constraint("Horizontal", 14, 1, 53, 1),
    Sketcher.Constraint("Horizontal", 11, 1, 56, 1),
    Sketcher.Constraint("Horizontal", 8, 1, 59, 1),
    Sketcher.Constraint("Diameter", 0, Q("7.9 mm")),
    Sketcher.Constraint("DistanceX", -1, 1, 4, 2, Q("0.532 mm")),
    Sketcher.Constraint("Radius", 1, Q("0.213767 mm")),
    Sketcher.Constraint("DistanceX", -1, 1, 23, 3, Q("2.1469 mm")),
    Sketcher.Constraint("DistanceY", 5, 3, -1, 1, Q("2.36889 mm")),
    Sketcher.Constraint("DistanceX", -1, 1, 11, 3, Q("1.938181 mm")),
    Sketcher.Constraint("DistanceX", -1, 1, 14, 3, Q("2.307661 mm")),
    Sketcher.Constraint("DistanceY", 14, 3, -1, 1, Q("0.90569 mm")),
    Sketcher.Constraint("DistanceY", 16, 3, -1, 1, Q("0.497609 mm")),
    Sketcher.Constraint("DistanceX", -1, 1, 19, 3, Q("2.22998 mm")),
    Sketcher.Constraint("DistanceX", -1, 1, 22, 3, Q("2.081651 mm")),
    Sketcher.Constraint("DistanceY", -1, 1, 25, 3, Q("1.394268 mm")),
    Sketcher.Constraint("DistanceX", -1, 1, 29, 3, Q("1.075609 mm")),
    Sketcher.Constraint("DistanceX", -1, 1, 31, 3, Q("0.659141 mm")),
    Sketcher.Constraint("DistanceX", -1, 1, 32, 3, Q("0.36948 mm")),
    Sketcher.Constraint("DistanceY", 1, 2, -1, 1, Q("2.345141 mm")),
    Sketcher.Constraint("DistanceY", 5, 1, -1, 1, Q("2.16462 mm")),
    Sketcher.Constraint("DistanceY", 9, 1, -1, 1, Q("1.843771 mm")),
    Sketcher.Constraint("DistanceY", 10, 2, -1, 1, Q("1.592461 mm")),
    Sketcher.Constraint("DistanceX", -1, 1, 11, 1, Q("1.771051 mm")),
    Sketcher.Constraint("DistanceX", -1, 1, 14, 1, Q("2.108671 mm")),
    Sketcher.Constraint("DistanceX", -1, 1, 16, 2, Q("2.32613 mm")),
    Sketcher.Constraint("DistanceX", -1, 1, 21, 1, Q("2.249261 mm")),
    Sketcher.Constraint("DistanceY", -1, 1, 23, 1, Q("1.13263 mm")),
    Sketcher.Constraint("DistanceX", -1, 1, 25, 2, Q("1.717262 mm")),
    Sketcher.Constraint("DistanceX", -1, 1, 27, 1, Q("1.472941 mm")),
    Sketcher.Constraint("DistanceX", -1, 1, 29, 1, Q("0.982859 mm")),
    Sketcher.Constraint("DistanceX", -1, 1, 32, 1, Q("0.337619 mm")),
    Sketcher.Constraint("DistanceX", -1, 1, 7, 3, Q("0.970265 mm")),
    Sketcher.Constraint("DistanceX", -1, 1, 8, 1, Q("1.276066 mm")),
    Sketcher.Constraint("DistanceX", -1, 1, 17, 1, Q("2.258925 mm")),
    Sketcher.Constraint("DistanceX", -1, 1, 20, 1, Q("2.208465 mm")),
    Sketcher.Constraint("DistanceX", -1, 1, 26, 1, Q("1.540768 mm")),
])
pad1 = body.newObject("PartDesign::Pad", "Pad")
pad1.Profile = sketch1
pad1.Length = 5
pad1.Reversed = True

# Sketch on XZ plane
sketch2 = body.newObject("Sketcher::SketchObject", "Sketch001")
sketch2.AttachmentSupport = (doc.getObject("XZ_Plane"), [""])
sketch2.MapMode = "FlatFace"
sketch2.addGeometry(Part.Circle(App.Vector(0, 0, 0), App.Vector(0, 0, 1), 4.4), False)
sketch2.addConstraint([
    Sketcher.Constraint("Coincident", 0, 3, -1, 1),
    Sketcher.Constraint("Diameter", 0, Q("8.8 mm")),
])
pad2 = body.newObject("PartDesign::Pad", "Pad001")
pad2.Profile = sketch2
pad2.Length = 2

# Sketch on XZ plane
sketch3 = body.newObject("Sketcher::SketchObject", "Sketch002")
sketch3.AttachmentSupport = (doc.getObject("XZ_Plane"), [""])
sketch3.MapMode = "FlatFace"
sketch3.AttachmentOffset = App.Placement(App.Vector(0, 0, 2), App.Rotation())
sketch3.addGeometry(Part.Circle(App.Vector(0, 0, 0), App.Vector(0, 0, 1), 2.4), False)
sketch3.addConstraint([
    Sketcher.Constraint("Coincident", 0, 3, -1, 1),
    Sketcher.Constraint("Diameter", 0, Q("4.8 mm")),
])
pad3 = body.newObject("PartDesign::Pad", "Pad002")
pad3.Profile = sketch3
pad3.Length = 2

# Sketch on XZ plane
sketch4 = body.newObject("Sketcher::SketchObject", "Sketch003")
sketch4.AttachmentSupport = (doc.getObject("XZ_Plane"), [""])
sketch4.MapMode = "FlatFace"
sketch4.AttachmentOffset = App.Placement(App.Vector(0, 0, 4), App.Rotation())
sketch4.addGeometry([
    Part.ArcOfCircle(Part.Circle(App.Vector(0, 0, 0), App.Vector(0, 0, 1), 2.4), math.radians(51), math.radians(129)),
    Part.LineSegment(App.Vector(-1.5, 1.9, 0), App.Vector(-1.5, -1.9, 0)),
    Part.ArcOfCircle(Part.Circle(App.Vector(0, 0, 0), App.Vector(0, 0, 1), 2.4), math.radians(-129), math.radians(-51)),
    Part.LineSegment(App.Vector(1.5, -1.9, 0), App.Vector(1.5, 1.9, 0)),
], False)
sketch4.addConstraint([
    Sketcher.Constraint("Coincident", 0, 2, 1, 1),
    Sketcher.Constraint("Coincident", 1, 2, 2, 1),
    Sketcher.Constraint("Coincident", 2, 2, 3, 1),
    Sketcher.Constraint("Coincident", 3, 2, 0, 1),
    Sketcher.Constraint("Vertical", 1),
    Sketcher.Constraint("Vertical", 3),
    Sketcher.Constraint("Coincident", 0, 3, -1, 1),
    Sketcher.Constraint("Coincident", 2, 3, -1, 1),
    Sketcher.Constraint("Equal", 0, 2),
    Sketcher.Constraint("Horizontal", 1, 2, 2, 2),
    Sketcher.Constraint("Radius", 0, Q("2.4 mm")),
    Sketcher.Constraint("DistanceX", 1, 2, 2, 2, Q("3 mm")),
])
pad4 = body.newObject("PartDesign::Pad", "Pad003")
pad4.Profile = sketch4
pad4.Length = 6

# Sketch on XZ plane
sketch5 = body.newObject("Sketcher::SketchObject", "Sketch004")
sketch5.AttachmentSupport = (doc.getObject("XZ_Plane"), [""])
sketch5.MapMode = "FlatFace"
sketch5.addGeometry([
    Part.Circle(App.Vector(0, 0, 0), App.Vector(0, 0, 1), 4.4),
    Part.Circle(App.Vector(0, 0, 0), App.Vector(0, 0, 1), 4),
], False)
sketch5.addConstraint([
    Sketcher.Constraint("Coincident", 0, 3, -1, 1),
    Sketcher.Constraint("Coincident", 1, 3, -1, 1),
    Sketcher.Constraint("Diameter", 0, Q("8.8 mm")),
    Sketcher.Constraint("Diameter", 1, Q("7.9 mm")),
])
pad5 = body.newObject("PartDesign::Pad", "Pad004")
pad5.Profile = sketch5
pad5.Length = 5
pad5.Reversed = True

doc.recompute()
